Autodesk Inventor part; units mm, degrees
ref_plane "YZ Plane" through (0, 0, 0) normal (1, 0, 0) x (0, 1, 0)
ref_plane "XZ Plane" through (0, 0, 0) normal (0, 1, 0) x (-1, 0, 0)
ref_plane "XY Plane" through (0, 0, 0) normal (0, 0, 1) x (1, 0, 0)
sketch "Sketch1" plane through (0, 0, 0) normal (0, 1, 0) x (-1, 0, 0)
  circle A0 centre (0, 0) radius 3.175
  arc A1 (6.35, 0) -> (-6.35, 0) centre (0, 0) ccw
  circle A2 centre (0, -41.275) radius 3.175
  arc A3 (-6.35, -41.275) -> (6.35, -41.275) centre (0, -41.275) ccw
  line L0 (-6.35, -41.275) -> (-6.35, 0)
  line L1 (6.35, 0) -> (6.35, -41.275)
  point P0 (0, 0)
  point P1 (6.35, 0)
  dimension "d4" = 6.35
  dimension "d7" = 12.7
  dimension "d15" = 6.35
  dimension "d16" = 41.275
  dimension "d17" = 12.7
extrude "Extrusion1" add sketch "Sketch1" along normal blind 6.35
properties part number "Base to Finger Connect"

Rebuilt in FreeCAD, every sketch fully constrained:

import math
import FreeCAD as App
import Part
import Sketcher
Q = App.Units.Quantity

doc = App.newDocument("Part")
body = doc.addObject("PartDesign::Body", "Body")

# Sketch on XZ plane
sketch1 = body.newObject("Sketcher::SketchObject", "Sketch")
sketch1.AttachmentSupport = (doc.getObject("XZ_Plane"), [""])
sketch1.MapMode = "FlatFace"
sketch1.addGeometry([
    Part.LineSegment(App.Vector(-6.3, -41.3, 0), App.Vector(-6.3, 0, 0)),  # 0
    Part.ArcOfCircle(Part.Circle(App.Vector(0, 0, 0), App.Vector(0, 0, 1), 6.3), math.radians(0), math.radians(180)),  # 1
    Part.LineSegment(App.Vector(6.3, 0, 0), App.Vector(6.3, -41.3, 0)),  # 2
    Part.ArcOfCircle(Part.Circle(App.Vector(0, -41.3, 0), App.Vector(0, 0, 1), 6.3), math.radians(180), math.radians(360)),  # 3
    Part.Circle(App.Vector(0, -41.3, 0), App.Vector(0, 0, 1), 3.2),  # 4
    Part.Circle(App.Vector(0, 0, 0), App.Vector(0, 0, 1), 3.2),  # 5
], False)
sketch1.addConstraint([
    Sketcher.Constraint("Tangent", 0, 2, 1, 2),
    Sketcher.Constraint("Tangent", 1, 1, 2, 1),
    Sketcher.Constraint("Tangent", 2, 2, 3, 2),
    Sketcher.Constraint("Tangent", 3, 1, 0, 1),
    Sketcher.Constraint("Vertical", 0),
    Sketcher.Constraint("Vertical", 2),
    Sketcher.Constraint("Coincident", 1, 3, -1, 1),
    Sketcher.Constraint("Coincident", 5, 3, -1, 1),
    Sketcher.Constraint("Coincident", 4, 3, 3, 3),
    Sketcher.Constraint("Equal", 4, 5),
    Sketcher.Constraint("Diameter", 4, Q("0.25 in")),
    Sketcher.Constraint("Radius", 1, Q("0.25 in")),
    Sketcher.Constraint("DistanceY", 0, 1, 0, 2, Q("1.625 in")),
])
pad1 = body.newObject("PartDesign::Pad", "Pad")
pad1.Profile = sketch1
pad1.Length = Q("0.25 in")
pad1.Reversed = True

doc.recompute()
